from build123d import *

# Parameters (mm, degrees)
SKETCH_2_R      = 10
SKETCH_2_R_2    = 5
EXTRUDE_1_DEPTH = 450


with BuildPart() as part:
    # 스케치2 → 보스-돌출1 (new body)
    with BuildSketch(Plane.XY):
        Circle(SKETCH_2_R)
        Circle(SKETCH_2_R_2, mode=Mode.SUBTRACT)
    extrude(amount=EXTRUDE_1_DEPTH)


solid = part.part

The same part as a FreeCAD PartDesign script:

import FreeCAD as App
import Part
import Sketcher
from FreeCAD import Vector
Q = App.Units.Quantity

doc = App.newDocument("Part")
body = doc.addObject("PartDesign::Body", "Body")

# Sketch on XY plane
sketch1 = body.newObject("Sketcher::SketchObject", "Sketch")
sketch1.AttachmentSupport = (doc.getObject("XY_Plane"), [""])
sketch1.MapMode = "FlatFace"
sketch1.addGeometry([
    Part.Circle(Vector(0, 0, 0), Vector(0, 0, 1), 10),
    Part.Circle(Vector(0, 0, 0), Vector(0, 0, 1), 5),
], False)
sketch1.addConstraint([
    Sketcher.Constraint("Coincident", 0, 3, -1, 1),
    Sketcher.Constraint("Coincident", 1, 3, -1, 1),
    Sketcher.Constraint("Diameter", 0, Q("20 mm")),
    Sketcher.Constraint("Diameter", 1, Q("10 mm")),
])
pad1 = body.newObject("PartDesign::Pad", "Pad")
pad1.Profile = sketch1
pad1.Length = 450

doc.recompute()
